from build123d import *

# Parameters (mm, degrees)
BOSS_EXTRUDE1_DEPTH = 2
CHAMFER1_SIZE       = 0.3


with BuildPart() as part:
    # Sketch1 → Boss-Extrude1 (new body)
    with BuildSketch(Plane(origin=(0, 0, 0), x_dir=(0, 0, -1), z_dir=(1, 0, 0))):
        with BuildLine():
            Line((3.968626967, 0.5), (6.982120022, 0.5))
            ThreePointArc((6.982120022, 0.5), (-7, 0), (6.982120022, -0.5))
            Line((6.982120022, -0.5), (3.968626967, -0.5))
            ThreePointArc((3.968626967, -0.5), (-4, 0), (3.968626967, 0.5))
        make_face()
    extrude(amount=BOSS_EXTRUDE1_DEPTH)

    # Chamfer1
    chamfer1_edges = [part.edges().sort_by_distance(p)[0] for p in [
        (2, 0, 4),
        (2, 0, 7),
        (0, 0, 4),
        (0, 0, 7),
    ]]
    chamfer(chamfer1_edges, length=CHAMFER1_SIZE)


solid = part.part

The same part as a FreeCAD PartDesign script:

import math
import FreeCAD as App
import Part
import Sketcher


def edges_at(feature, points):
    """Names of the edges that pass closest to the given points."""
    edges = feature.Shape.Edges
    near = lambda p: min(range(len(edges)), key=lambda i: edges[i].distToShape(Part.Vertex(*p))[0])
    return sorted({f"Edge{near(p) + 1}" for p in points})

doc = App.newDocument("Part")
body = doc.addObject("PartDesign::Body", "Body")

# Sketch on YZ plane
sketch1 = body.newObject("Sketcher::SketchObject", "Sketch")
sketch1.AttachmentSupport = (doc.getObject("YZ_Plane"), [""])
sketch1.MapMode = "FlatFace"
sketch1.addGeometry([
    Part.LineSegment(App.Vector(0.5, -4, 0), App.Vector(0.5, -7, 0)),
    Part.ArcOfCircle(Part.Circle(App.Vector(0, 0, 0), App.Vector(0, 0, 1), 7), math.radians(-86), math.radians(266)),
    Part.LineSegment(App.Vector(-0.5, -7, 0), App.Vector(-0.5, -4, 0)),
    Part.ArcOfCircle(Part.Circle(App.Vector(0, 0, 0), App.Vector(0, 0, 1), 4), math.radians(-83), math.radians(263)),
], False)
sketch1.addConstraint([
    Sketcher.Constraint("Coincident", 0, 2, 1, 1),
    Sketcher.Constraint("Coincident", 1, 2, 2, 1),
    Sketcher.Constraint("Coincident", 2, 2, 3, 2),
    Sketcher.Constraint("Coincident", 3, 1, 0, 1),
    Sketcher.Constraint("Vertical", 0),
    Sketcher.Constraint("Vertical", 2),
    Sketcher.Constraint("Coincident", 1, 3, -1, 1),
    Sketcher.Constraint("Coincident", 3, 3, -1, 1),
    Sketcher.Constraint("Horizontal", 0, 2, 1, 2),
    Sketcher.Constraint("Radius", 1, 7.0),
    Sketcher.Constraint("Radius", 3, 4.0),
    Sketcher.Constraint("DistanceX", 1, 2, 0, 2, 1.0),
])
pad1 = body.newObject("PartDesign::Pad", "Pad")
pad1.Profile = sketch1
pad1.Length = 2
doc.recompute()

chamfer = body.newObject("PartDesign::Chamfer", "Chamfer")
chamfer.Base = (pad1, edges_at(pad1, [
    (2, 0, 4),
    (2, 0, 7),
    (0, 0, 4),
    (0, 0, 7),
]))
chamfer.Size = 0.3

doc.recompute()
